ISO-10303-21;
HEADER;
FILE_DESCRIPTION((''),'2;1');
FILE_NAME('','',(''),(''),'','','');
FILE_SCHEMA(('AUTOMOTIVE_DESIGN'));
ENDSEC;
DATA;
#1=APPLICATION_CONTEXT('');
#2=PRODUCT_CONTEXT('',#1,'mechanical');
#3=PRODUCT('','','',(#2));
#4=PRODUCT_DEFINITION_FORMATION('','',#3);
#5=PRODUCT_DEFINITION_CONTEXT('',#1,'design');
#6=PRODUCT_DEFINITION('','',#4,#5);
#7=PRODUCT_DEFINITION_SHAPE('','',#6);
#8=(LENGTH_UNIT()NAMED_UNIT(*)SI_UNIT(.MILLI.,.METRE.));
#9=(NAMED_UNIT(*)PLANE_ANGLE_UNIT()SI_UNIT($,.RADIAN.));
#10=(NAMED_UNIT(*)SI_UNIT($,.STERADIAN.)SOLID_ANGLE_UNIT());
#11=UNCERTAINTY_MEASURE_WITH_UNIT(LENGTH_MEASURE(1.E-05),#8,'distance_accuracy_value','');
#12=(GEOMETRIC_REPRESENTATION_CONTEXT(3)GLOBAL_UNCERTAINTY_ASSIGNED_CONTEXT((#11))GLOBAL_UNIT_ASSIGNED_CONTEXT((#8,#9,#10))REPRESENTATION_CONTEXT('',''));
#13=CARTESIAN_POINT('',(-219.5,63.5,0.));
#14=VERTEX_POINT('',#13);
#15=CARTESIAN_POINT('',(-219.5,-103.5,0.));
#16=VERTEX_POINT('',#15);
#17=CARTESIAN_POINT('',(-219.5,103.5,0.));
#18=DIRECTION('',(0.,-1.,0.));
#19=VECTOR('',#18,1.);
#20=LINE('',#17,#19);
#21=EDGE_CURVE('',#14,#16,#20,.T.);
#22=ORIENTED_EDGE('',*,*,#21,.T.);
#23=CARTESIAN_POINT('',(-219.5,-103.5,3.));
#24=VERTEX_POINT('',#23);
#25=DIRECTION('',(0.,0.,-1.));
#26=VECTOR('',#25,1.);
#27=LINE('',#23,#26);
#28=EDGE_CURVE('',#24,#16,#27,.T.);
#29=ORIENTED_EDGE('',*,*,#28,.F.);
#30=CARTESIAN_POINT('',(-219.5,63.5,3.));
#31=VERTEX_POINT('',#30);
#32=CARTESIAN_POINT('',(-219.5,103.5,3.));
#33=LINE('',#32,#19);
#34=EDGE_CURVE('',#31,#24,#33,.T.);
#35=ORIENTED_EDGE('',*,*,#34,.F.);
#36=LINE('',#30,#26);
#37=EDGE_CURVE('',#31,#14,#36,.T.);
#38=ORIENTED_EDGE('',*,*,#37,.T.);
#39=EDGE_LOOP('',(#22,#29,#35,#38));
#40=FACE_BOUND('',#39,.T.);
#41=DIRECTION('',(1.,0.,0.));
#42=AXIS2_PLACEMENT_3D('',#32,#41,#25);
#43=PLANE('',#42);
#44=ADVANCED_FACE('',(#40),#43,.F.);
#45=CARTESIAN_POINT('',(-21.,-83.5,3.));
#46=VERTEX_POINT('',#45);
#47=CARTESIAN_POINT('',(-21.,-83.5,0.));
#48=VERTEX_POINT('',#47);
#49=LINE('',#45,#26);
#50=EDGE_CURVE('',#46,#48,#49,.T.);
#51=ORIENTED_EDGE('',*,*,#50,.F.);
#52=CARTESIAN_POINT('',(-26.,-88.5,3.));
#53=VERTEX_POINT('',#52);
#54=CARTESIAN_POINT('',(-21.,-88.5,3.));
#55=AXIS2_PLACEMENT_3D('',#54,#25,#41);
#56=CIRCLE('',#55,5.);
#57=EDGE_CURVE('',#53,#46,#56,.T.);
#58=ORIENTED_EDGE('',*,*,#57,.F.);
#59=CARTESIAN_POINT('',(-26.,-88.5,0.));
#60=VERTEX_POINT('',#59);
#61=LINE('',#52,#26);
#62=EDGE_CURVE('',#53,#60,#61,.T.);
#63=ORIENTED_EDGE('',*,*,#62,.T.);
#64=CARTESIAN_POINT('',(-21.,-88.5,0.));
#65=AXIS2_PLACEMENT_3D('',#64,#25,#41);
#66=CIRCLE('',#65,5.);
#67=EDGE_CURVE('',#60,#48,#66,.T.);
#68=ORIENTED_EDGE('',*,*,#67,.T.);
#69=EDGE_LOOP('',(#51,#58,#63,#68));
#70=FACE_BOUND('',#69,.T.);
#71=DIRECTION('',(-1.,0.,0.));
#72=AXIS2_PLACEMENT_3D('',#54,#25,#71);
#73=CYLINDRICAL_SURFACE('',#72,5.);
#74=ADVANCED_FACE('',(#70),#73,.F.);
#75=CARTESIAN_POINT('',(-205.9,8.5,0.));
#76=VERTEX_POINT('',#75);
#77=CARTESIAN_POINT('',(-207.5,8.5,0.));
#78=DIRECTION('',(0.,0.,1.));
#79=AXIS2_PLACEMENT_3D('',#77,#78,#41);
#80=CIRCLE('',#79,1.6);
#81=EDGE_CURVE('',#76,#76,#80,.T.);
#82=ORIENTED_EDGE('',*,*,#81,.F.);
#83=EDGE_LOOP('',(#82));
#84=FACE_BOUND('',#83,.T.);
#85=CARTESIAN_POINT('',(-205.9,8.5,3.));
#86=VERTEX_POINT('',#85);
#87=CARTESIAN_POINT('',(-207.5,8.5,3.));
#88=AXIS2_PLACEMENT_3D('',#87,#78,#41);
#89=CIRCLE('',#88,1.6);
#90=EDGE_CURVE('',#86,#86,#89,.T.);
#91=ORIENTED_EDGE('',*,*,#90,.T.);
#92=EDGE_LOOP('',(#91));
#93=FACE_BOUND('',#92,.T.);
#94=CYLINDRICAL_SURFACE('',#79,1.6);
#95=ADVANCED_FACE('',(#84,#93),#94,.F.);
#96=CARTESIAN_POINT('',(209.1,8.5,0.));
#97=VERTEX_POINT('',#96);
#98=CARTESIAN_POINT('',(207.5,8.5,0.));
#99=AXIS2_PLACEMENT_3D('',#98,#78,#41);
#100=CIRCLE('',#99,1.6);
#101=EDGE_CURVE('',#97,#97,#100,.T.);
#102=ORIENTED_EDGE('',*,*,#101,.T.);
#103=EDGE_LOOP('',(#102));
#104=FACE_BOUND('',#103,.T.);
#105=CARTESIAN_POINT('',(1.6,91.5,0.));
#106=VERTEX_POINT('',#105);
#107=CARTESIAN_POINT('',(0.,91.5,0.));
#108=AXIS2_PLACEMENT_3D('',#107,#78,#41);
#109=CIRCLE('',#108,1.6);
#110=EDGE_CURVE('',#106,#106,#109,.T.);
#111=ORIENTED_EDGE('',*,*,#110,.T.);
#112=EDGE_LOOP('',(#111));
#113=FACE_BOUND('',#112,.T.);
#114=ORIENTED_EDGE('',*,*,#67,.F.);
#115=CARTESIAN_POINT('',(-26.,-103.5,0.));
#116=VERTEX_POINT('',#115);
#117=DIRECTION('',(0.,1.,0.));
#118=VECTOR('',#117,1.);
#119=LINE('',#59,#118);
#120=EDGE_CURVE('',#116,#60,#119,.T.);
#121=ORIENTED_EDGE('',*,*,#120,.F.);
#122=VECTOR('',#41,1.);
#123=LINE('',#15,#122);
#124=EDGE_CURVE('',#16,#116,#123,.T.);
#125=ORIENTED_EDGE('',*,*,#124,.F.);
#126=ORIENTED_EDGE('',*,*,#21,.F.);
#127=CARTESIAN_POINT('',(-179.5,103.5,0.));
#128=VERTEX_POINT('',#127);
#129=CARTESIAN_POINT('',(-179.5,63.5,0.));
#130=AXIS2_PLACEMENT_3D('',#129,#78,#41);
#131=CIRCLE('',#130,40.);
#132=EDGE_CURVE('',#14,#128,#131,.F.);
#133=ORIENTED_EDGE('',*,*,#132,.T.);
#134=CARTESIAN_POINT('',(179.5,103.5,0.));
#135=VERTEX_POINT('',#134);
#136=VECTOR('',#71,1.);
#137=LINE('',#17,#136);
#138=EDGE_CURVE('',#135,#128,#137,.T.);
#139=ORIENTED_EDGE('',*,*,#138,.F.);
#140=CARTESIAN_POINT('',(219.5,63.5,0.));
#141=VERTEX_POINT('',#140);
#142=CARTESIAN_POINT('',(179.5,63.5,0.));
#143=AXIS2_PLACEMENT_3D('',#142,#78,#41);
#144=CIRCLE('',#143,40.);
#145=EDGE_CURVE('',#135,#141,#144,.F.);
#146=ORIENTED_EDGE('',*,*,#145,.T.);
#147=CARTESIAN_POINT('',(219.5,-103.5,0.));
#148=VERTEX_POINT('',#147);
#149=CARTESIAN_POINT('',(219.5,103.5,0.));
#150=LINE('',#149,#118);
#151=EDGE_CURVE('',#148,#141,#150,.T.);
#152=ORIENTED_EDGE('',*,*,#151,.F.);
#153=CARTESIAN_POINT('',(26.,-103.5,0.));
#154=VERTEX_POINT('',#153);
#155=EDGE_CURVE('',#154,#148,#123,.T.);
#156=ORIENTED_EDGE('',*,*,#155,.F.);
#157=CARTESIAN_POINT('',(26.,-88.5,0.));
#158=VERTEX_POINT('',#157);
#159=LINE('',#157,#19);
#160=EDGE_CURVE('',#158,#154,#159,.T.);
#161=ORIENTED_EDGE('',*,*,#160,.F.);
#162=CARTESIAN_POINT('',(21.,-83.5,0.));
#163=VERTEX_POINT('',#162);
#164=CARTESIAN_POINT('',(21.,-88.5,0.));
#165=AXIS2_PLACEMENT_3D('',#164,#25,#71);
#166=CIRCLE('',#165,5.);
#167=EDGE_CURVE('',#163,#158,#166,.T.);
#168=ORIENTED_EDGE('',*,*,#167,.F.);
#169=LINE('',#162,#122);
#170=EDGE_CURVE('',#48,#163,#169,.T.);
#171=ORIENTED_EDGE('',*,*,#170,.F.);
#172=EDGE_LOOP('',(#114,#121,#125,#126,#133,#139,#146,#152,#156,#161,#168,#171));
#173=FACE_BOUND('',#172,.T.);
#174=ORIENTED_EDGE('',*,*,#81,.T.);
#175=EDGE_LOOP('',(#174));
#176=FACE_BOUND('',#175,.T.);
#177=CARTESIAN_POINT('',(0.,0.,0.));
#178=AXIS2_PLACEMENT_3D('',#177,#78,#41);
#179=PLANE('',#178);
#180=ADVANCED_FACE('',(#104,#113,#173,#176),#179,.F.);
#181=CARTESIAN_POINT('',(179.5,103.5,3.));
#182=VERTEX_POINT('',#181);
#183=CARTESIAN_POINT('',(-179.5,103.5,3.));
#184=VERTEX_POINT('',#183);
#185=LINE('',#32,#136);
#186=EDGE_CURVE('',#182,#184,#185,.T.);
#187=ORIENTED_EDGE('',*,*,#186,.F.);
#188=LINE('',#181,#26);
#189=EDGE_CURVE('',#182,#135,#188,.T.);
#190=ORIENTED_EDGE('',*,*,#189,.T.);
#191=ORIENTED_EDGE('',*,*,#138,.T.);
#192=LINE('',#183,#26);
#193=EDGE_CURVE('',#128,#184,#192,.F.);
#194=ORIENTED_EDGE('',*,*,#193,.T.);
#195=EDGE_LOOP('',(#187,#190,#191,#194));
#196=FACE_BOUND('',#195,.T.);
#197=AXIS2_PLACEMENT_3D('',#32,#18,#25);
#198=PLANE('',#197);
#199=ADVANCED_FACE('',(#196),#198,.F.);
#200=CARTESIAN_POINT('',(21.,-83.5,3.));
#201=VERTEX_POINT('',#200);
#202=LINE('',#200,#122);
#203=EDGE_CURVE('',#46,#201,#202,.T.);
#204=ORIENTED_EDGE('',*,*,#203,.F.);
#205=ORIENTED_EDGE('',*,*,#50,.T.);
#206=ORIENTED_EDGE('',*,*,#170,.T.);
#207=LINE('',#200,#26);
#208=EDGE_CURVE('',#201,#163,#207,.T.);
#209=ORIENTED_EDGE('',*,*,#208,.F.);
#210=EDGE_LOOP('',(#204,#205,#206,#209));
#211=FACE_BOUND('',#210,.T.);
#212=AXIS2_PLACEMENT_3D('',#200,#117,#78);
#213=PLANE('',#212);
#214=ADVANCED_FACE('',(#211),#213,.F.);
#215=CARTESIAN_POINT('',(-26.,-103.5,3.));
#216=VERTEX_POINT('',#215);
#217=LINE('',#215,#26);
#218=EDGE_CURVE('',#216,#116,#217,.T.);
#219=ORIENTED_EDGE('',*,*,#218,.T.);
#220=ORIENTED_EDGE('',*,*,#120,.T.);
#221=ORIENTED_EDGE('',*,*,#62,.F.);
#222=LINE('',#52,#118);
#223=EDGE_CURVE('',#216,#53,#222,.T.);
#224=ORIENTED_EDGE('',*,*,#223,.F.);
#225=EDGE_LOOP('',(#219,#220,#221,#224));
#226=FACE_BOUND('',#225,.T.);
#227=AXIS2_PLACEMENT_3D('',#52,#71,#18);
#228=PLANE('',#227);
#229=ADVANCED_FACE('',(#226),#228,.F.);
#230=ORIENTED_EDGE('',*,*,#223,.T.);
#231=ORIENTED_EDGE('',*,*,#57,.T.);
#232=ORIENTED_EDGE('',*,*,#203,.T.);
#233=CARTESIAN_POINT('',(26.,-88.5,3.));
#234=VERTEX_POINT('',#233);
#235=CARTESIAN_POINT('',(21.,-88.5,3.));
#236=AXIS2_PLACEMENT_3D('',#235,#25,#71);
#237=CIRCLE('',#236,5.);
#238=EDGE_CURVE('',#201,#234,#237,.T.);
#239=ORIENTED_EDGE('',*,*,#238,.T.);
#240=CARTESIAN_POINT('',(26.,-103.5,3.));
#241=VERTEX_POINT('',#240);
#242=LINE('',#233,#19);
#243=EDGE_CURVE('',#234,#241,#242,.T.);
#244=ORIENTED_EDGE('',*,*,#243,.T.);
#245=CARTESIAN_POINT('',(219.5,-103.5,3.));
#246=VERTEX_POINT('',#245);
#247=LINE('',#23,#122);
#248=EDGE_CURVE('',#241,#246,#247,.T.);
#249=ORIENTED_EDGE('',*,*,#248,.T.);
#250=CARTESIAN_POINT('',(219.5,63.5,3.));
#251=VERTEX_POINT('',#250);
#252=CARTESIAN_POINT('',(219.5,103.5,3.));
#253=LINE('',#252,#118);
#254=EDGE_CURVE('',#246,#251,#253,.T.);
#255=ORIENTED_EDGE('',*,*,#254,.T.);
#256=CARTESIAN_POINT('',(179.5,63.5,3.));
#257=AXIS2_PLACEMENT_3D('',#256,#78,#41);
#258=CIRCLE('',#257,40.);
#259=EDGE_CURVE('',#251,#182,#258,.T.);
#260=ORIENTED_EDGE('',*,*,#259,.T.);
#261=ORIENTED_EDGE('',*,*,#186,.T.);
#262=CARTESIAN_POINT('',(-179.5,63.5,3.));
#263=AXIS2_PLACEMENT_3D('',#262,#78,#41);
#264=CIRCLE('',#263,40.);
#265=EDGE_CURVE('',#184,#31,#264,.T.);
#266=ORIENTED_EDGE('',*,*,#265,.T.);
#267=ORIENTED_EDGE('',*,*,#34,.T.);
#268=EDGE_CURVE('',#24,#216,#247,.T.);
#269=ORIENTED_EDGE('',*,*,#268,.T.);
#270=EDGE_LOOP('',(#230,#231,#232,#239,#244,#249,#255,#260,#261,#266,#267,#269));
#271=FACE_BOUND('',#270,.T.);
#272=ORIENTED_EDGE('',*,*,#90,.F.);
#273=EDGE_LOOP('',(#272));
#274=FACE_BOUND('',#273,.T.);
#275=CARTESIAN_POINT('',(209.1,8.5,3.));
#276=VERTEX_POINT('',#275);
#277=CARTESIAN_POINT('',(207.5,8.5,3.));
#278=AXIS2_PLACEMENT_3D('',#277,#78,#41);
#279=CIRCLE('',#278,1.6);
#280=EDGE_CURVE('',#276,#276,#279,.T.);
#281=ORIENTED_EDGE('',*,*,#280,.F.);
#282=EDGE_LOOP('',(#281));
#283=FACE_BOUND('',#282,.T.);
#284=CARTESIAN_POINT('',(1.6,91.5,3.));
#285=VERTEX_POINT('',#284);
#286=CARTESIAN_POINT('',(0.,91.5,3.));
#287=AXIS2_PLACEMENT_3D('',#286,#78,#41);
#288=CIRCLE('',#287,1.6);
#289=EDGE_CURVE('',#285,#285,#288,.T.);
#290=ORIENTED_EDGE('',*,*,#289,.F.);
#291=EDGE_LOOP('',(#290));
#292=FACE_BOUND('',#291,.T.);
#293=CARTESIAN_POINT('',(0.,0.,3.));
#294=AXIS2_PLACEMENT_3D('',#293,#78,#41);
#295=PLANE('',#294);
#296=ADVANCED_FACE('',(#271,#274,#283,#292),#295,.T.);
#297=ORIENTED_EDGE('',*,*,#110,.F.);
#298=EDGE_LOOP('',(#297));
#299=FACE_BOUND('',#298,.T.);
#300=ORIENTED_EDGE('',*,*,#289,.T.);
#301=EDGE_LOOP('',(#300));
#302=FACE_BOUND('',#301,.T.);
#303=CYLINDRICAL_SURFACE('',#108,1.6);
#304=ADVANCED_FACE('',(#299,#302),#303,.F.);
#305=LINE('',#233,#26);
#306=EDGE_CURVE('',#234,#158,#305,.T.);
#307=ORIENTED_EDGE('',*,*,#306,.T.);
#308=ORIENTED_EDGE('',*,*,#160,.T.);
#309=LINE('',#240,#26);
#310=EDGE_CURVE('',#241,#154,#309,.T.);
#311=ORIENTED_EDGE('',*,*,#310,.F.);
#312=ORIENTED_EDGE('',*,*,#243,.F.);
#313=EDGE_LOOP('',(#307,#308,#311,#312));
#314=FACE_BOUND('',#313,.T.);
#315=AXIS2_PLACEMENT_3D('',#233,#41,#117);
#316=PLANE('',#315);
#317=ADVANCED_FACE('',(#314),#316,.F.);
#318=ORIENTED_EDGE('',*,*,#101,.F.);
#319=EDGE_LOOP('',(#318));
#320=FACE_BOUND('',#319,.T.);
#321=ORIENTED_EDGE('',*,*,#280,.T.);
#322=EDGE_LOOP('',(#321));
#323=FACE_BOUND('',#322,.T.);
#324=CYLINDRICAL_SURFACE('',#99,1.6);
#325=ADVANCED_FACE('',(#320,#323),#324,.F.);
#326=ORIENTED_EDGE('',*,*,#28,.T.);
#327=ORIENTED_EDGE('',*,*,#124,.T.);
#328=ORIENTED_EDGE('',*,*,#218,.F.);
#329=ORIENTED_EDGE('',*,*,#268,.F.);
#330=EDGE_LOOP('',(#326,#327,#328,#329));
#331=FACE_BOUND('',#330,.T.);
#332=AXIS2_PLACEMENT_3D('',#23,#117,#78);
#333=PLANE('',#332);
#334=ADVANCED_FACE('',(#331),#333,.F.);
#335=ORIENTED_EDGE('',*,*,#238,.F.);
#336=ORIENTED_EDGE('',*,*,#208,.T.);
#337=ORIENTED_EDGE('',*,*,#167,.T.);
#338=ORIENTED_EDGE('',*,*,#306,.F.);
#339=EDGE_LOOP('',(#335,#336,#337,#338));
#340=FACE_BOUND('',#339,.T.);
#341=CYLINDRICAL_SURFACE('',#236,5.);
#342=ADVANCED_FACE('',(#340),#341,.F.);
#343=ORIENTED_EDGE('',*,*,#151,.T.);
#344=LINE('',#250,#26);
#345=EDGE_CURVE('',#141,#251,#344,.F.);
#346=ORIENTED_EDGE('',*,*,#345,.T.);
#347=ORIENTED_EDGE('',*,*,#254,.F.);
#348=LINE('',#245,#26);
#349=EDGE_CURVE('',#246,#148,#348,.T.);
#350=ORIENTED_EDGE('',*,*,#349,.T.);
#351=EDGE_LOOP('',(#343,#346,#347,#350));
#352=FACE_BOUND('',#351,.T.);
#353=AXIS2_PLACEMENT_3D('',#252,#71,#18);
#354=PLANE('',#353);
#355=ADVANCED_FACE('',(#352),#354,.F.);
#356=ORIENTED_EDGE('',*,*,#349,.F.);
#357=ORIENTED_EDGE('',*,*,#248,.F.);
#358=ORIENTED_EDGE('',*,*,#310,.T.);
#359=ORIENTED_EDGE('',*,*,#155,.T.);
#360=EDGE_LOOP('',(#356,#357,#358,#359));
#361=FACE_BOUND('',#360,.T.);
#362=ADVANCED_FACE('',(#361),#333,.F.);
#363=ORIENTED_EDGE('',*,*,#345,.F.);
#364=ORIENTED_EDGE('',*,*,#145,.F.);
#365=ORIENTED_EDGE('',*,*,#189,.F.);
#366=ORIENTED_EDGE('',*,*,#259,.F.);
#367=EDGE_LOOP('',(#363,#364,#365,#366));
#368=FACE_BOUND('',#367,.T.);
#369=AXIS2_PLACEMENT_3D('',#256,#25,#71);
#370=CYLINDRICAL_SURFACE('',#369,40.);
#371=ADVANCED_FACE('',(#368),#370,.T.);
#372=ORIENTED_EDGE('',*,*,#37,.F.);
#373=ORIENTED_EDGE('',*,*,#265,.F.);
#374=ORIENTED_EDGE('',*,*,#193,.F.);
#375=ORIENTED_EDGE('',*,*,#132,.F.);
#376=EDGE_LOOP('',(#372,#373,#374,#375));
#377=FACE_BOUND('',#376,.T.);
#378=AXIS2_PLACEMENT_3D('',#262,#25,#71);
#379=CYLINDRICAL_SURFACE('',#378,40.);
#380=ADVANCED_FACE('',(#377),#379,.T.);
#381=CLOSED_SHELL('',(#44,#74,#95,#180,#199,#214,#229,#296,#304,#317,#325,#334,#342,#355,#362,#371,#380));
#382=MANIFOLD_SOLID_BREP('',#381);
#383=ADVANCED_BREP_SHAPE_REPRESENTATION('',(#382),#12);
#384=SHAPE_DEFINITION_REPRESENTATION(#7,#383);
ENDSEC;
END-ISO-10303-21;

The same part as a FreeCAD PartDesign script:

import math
import FreeCAD as App
import Part
import Sketcher

V = App.Vector
Q = App.Units.Quantity


def edges_at(feature, points):
    """Names of the edges that pass closest to the given points."""
    edges = feature.Shape.Edges
    near = lambda p: min(range(len(edges)), key=lambda i: edges[i].distToShape(Part.Vertex(*p))[0])
    return sorted({f"Edge{near(p) + 1}" for p in points})

doc = App.newDocument("Part")
params = doc.addObject("Spreadsheet::Sheet", "Params")
for row, (alias, value) in enumerate([
    ("sketch1_width", "439 mm"),
    ("sketch1_height", "207 mm"),
    ("pad1_length", "3 mm"),
    ("fillet_radius", "40 mm"),
    ("sketch2_radius", "5 mm"),
    ("sketch2_width", "42 mm"),
    ("sketch2_height", "15 mm"),
    ("sketch3_diameter", "3.2 mm"),
    ("sketch4_diameter", "3.2 mm"),
], start=1):
    params.set(f"A{row}", alias)
    params.set(f"B{row}", "=" + value)
    params.setAlias(f"B{row}", alias)

body = doc.addObject("PartDesign::Body", "Body")

# Sketch on XY plane
sketch1 = body.newObject("Sketcher::SketchObject", "Sketch")
sketch1.AttachmentSupport = (doc.getObject("XY_Plane"), [""])
sketch1.MapMode = "FlatFace"
sketch1.addGeometry([
    Part.LineSegment(V(-220, 104, 0), V(-220, -104, 0)),
    Part.LineSegment(V(-220, -104, 0), V(220, -104, 0)),
    Part.LineSegment(V(220, -104, 0), V(220, 104, 0)),
    Part.LineSegment(V(220, 104, 0), V(-220, 104, 0)),
], False)
sketch1.addConstraint([
    Sketcher.Constraint("Coincident", 0, 2, 1, 1),
    Sketcher.Constraint("Coincident", 1, 2, 2, 1),
    Sketcher.Constraint("Coincident", 2, 2, 3, 1),
    Sketcher.Constraint("Coincident", 3, 2, 0, 1),
    Sketcher.Constraint("Vertical", 0),
    Sketcher.Constraint("Horizontal", 1),
    Sketcher.Constraint("Vertical", 2),
    Sketcher.Constraint("Horizontal", 3),
    Sketcher.Constraint("Symmetric", 0, 2, 2, 2, -1, 1),
    Sketcher.Constraint("DistanceX", 1, 1, 1, 2, Q("439 mm")),
    Sketcher.Constraint("DistanceY", 0, 2, 0, 1, Q("207 mm")),
])
sketch1.setExpression("Constraints[9]", "Params.sketch1_width")
sketch1.setExpression("Constraints[10]", "Params.sketch1_height")
pad1 = body.newObject("PartDesign::Pad", "Pad")
pad1.Profile = sketch1
pad1.setExpression("Length", "Params.pad1_length")
doc.recompute()

fillet = body.newObject("PartDesign::Fillet", "Fillet")
fillet.Base = (pad1, edges_at(pad1, [(-219.5, 103.5, 1.5), (219.5, 103.5, 1.5)]))
fillet.setExpression("Radius", "Params.fillet_radius")

# Sketch on XY plane
sketch2 = body.newObject("Sketcher::SketchObject", "Sketch001")
sketch2.AttachmentSupport = (doc.getObject("XY_Plane"), [""])
sketch2.MapMode = "FlatFace"
sketch2.addGeometry([
    Part.LineSegment(V(-21, -84, 0), V(21, -84, 0)),  # 0
    Part.ArcOfCircle(Part.Circle(V(21, -88, 0), V(0, 0, 1), 5), math.radians(0), math.radians(90)),  # 1
    Part.LineSegment(V(26, -88, 0), V(26, -104, 0)),  # 2
    Part.LineSegment(V(26, -104, 0), V(-26, -104, 0)),  # 3
    Part.LineSegment(V(-26, -104, 0), V(-26, -88, 0)),  # 4
    Part.ArcOfCircle(Part.Circle(V(-21, -88, 0), V(0, 0, 1), 5), math.radians(90), math.radians(180)),  # 5
], False)
sketch2.addConstraint([
    Sketcher.Constraint("Tangent", 0, 2, 1, 2),
    Sketcher.Constraint("Tangent", 1, 1, 2, 1),
    Sketcher.Constraint("Coincident", 2, 2, 3, 1),
    Sketcher.Constraint("Coincident", 3, 2, 4, 1),
    Sketcher.Constraint("Tangent", 4, 2, 5, 2),
    Sketcher.Constraint("Tangent", 5, 1, 0, 1),
    Sketcher.Constraint("Horizontal", 0),
    Sketcher.Constraint("Vertical", 2),
    Sketcher.Constraint("Horizontal", 3),
    Sketcher.Constraint("Vertical", 4),
    Sketcher.Constraint("Equal", 1, 5),
    Sketcher.Constraint("Radius", 1, Q("5 mm")),
    Sketcher.Constraint("DistanceX", 0, 1, 0, 2, Q("42 mm")),
    Sketcher.Constraint("DistanceY", 2, 2, 2, 1, Q("15 mm")),
    Sketcher.Constraint("DistanceX", -1, 1, 1, 3, Q("21 mm")),
    Sketcher.Constraint("DistanceY", 1, 3, -1, 1, Q("88.5 mm")),
])
sketch2.setExpression("Constraints[11]", "Params.sketch2_radius")
sketch2.setExpression("Constraints[12]", "Params.sketch2_width")
sketch2.setExpression("Constraints[13]", "Params.sketch2_height")
pocket1 = body.newObject("PartDesign::Pocket", "Pocket")
pocket1.Profile = sketch2
pocket1.Type = "ThroughAll"
pocket1.Reversed = True

# Sketch on XY plane
sketch3 = body.newObject("Sketcher::SketchObject", "Sketch002")
sketch3.AttachmentSupport = (doc.getObject("XY_Plane"), [""])
sketch3.MapMode = "FlatFace"
sketch3.AttachmentOffset = App.Placement(V(0, 0, 3), App.Rotation())
sketch3.addGeometry([
    Part.Circle(V(-207.5, 8.5, 0), V(0, 0, 1), 1.6),
    Part.Circle(V(207.5, 8.5, 0), V(0, 0, 1), 1.6),
], False)
sketch3.addConstraint([
    Sketcher.Constraint("Equal", 0, 1),
    Sketcher.Constraint("Symmetric", 0, 3, 1, 3, -2),
    Sketcher.Constraint("Diameter", 0, Q("3.2 mm")),
    Sketcher.Constraint("DistanceX", 0, 3, 1, 3, Q("415 mm")),
    Sketcher.Constraint("DistanceY", -1, 1, 0, 3, Q("8.5 mm")),
])
sketch3.setExpression("Constraints[2]", "Params.sketch3_diameter")
pocket2 = body.newObject("PartDesign::Pocket", "Pocket001")
pocket2.Profile = sketch3
pocket2.Type = "ThroughAll"

# Sketch on XY plane
sketch4 = body.newObject("Sketcher::SketchObject", "Sketch003")
sketch4.AttachmentSupport = (doc.getObject("XY_Plane"), [""])
sketch4.MapMode = "FlatFace"
sketch4.AttachmentOffset = App.Placement(V(0, 0, 3), App.Rotation())
sketch4.addGeometry(Part.Circle(V(0, 91.5, 0), V(0, 0, 1), 1.6), False)
sketch4.addConstraint([
    Sketcher.Constraint("PointOnObject", 0, 3, -2),
    Sketcher.Constraint("Diameter", 0, Q("3.2 mm")),
    Sketcher.Constraint("DistanceY", -1, 1, 0, 3, Q("91.5 mm")),
])
sketch4.setExpression("Constraints[1]", "Params.sketch4_diameter")
pocket3 = body.newObject("PartDesign::Pocket", "Pocket002")
pocket3.Profile = sketch4
pocket3.Type = "ThroughAll"

doc.recompute()
